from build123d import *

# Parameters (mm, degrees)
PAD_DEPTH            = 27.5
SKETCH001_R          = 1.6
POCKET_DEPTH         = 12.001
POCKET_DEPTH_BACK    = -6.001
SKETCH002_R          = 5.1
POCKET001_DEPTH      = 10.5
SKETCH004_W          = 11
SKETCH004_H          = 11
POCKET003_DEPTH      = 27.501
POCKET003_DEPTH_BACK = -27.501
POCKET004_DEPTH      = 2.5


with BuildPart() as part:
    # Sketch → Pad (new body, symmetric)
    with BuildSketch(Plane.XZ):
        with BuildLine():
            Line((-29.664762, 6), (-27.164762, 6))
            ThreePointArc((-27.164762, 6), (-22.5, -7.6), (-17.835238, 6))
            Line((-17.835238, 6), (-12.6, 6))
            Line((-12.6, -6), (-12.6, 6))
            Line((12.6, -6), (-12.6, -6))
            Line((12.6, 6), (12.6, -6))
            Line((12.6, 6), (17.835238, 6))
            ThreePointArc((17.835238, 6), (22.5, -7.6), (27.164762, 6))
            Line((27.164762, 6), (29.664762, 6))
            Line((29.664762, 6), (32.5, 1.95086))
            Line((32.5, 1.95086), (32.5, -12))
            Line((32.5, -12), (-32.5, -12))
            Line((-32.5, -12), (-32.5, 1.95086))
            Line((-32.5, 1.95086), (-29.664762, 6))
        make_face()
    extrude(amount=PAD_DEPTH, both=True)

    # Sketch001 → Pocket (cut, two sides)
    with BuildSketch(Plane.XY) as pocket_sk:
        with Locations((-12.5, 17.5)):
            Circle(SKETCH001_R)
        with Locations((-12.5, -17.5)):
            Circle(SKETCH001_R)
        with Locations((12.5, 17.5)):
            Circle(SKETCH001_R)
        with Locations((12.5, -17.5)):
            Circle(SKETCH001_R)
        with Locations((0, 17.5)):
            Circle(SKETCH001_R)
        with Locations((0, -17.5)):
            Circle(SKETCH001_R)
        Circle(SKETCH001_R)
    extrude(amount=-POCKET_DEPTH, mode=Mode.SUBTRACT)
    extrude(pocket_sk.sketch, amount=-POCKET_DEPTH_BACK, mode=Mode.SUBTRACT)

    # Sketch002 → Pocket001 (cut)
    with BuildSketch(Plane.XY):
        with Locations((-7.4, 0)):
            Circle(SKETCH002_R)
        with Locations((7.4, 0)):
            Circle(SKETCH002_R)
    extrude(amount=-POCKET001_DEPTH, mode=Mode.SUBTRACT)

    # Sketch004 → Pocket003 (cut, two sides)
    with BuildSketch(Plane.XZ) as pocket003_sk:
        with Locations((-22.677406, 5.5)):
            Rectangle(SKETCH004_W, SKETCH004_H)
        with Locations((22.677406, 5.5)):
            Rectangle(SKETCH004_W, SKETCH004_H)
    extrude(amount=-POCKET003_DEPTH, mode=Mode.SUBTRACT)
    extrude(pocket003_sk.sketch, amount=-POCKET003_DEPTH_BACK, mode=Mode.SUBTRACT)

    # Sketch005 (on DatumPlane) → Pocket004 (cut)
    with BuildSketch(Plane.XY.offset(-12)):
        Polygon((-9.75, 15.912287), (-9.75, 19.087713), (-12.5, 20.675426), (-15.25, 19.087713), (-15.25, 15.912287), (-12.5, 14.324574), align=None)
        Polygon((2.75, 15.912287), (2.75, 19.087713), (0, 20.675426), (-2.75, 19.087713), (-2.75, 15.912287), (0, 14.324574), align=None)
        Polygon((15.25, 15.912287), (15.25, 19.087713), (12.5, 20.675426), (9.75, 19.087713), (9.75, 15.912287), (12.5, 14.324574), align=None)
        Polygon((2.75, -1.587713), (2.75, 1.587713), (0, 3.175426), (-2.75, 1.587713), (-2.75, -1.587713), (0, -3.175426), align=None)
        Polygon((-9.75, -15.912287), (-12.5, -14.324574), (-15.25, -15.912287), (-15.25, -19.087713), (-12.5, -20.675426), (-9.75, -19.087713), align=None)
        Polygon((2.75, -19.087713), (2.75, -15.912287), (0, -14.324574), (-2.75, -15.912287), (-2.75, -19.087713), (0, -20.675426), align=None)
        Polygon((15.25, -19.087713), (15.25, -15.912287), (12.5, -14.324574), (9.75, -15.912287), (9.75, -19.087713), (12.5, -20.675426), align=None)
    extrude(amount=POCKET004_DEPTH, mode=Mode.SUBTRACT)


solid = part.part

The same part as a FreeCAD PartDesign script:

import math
import FreeCAD as App
import Part
import Sketcher
from FreeCAD import Vector
Q = App.Units.Quantity


def add_polygon(sketch, points):
    """Adds a closed chain of lines whose ends are joined by coincident constraints."""
    first, n = sketch.GeometryCount, len(points)
    for a, b in zip(points, points[1:] + points[:1]):
        sketch.addGeometry(Part.LineSegment(App.Vector(*a, 0), App.Vector(*b, 0)), False)
    for i in range(n):
        sketch.addConstraint(Sketcher.Constraint("Coincident", first + i, 2, first + (i + 1) % n, 1))

doc = App.newDocument("Part")
params = doc.addObject("Spreadsheet::Sheet", "Params")
for row, (alias, value) in enumerate([
    ("sketch1_radius", "7.6 mm"),
    ("sketch1_width", "65 mm"),
    ("sketch1_height", "12 mm"),
    ("sketch1_width2", "2.5 mm"),
    ("sketch1_width3", "25.2 mm"),
    ("pad1_length", "55 mm"),
    ("sketch2_diameter", "3.2 mm"),
    ("sketch3_diameter", "10.2 mm"),
    ("pocket2_length", "10.5 mm"),
    ("sketch4_width", "11 mm"),
    ("pocket4_length", "2.5 mm"),
], start=1):
    params.set(f"A{row}", alias)
    params.set(f"B{row}", "=" + value)
    params.setAlias(f"B{row}", alias)

body = doc.addObject("PartDesign::Body", "Body")

sketch1 = body.newObject("Sketcher::SketchObject", "Sketch")
sketch1.AttachmentSupport = (doc.getObject("XZ_Plane"), [""])
sketch1.MapMode = "FlatFace"
sketch1.addGeometry([
    Part.LineSegment(Vector(-27.2, 6, 0), Vector(-29.7, 6, 0)),
    Part.LineSegment(Vector(-29.7, 6, 0), Vector(-32.5, 2, 0)),
    Part.LineSegment(Vector(-32.5, 2, 0), Vector(-32.5, -12, 0)),
    Part.LineSegment(Vector(-32.5, -12, 0), Vector(32.5, -12, 0)),
    Part.LineSegment(Vector(32.5, -12, 0), Vector(32.5, 2, 0)),
    Part.LineSegment(Vector(32.5, 2, 0), Vector(29.7, 6, 0)),
    Part.LineSegment(Vector(29.7, 6, 0), Vector(27.2, 6, 0)),
    Part.ArcOfCircle(Part.Circle(Vector(22.5, 0, 0), Vector(0, 0, 1), 7.6), math.radians(128), math.radians(412)),
    Part.LineSegment(Vector(17.8, 6, 0), Vector(12.6, 6, 0)),
    Part.LineSegment(Vector(12.6, 6, 0), Vector(12.6, -6, 0)),
    Part.LineSegment(Vector(12.6, -6, 0), Vector(-12.6, -6, 0)),
    Part.LineSegment(Vector(-12.6, -6, 0), Vector(-12.6, 6, 0)),
    Part.LineSegment(Vector(-12.6, 6, 0), Vector(-17.8, 6, 0)),
    Part.ArcOfCircle(Part.Circle(Vector(-22.5, 0, 0), Vector(0, 0, 1), 7.6), math.radians(128), math.radians(412)),
], False)
sketch1.addConstraint([
    Sketcher.Constraint("Coincident", 0, 2, 1, 1),
    Sketcher.Constraint("Coincident", 1, 2, 2, 1),
    Sketcher.Constraint("Coincident", 2, 2, 3, 1),
    Sketcher.Constraint("Coincident", 3, 2, 4, 1),
    Sketcher.Constraint("Coincident", 4, 2, 5, 1),
    Sketcher.Constraint("Coincident", 5, 2, 6, 1),
    Sketcher.Constraint("Coincident", 6, 2, 7, 2),
    Sketcher.Constraint("Coincident", 7, 1, 8, 1),
    Sketcher.Constraint("Coincident", 8, 2, 9, 1),
    Sketcher.Constraint("Coincident", 9, 2, 10, 1),
    Sketcher.Constraint("Coincident", 10, 2, 11, 1),
    Sketcher.Constraint("Coincident", 11, 2, 12, 1),
    Sketcher.Constraint("Coincident", 12, 2, 13, 2),
    Sketcher.Constraint("Coincident", 13, 1, 0, 1),
    Sketcher.Constraint("Horizontal", 0),
    Sketcher.Constraint("Vertical", 2),
    Sketcher.Constraint("Horizontal", 3),
    Sketcher.Constraint("Vertical", 4),
    Sketcher.Constraint("Horizontal", 6),
    Sketcher.Constraint("Horizontal", 8),
    Sketcher.Constraint("Vertical", 9),
    Sketcher.Constraint("Horizontal", 10),
    Sketcher.Constraint("Vertical", 11),
    Sketcher.Constraint("Horizontal", 12),
    Sketcher.Constraint("Equal", 7, 13),
    Sketcher.Constraint("Symmetric", 7, 3, 13, 3, -1, 1),
    Sketcher.Constraint("Symmetric", 8, 2, 10, 2, -1, 1),
    Sketcher.Constraint("Symmetric", 1, 2, 4, 2, -2),
    Sketcher.Constraint("Symmetric", 0, 2, 5, 2, -2),
    Sketcher.Constraint("Symmetric", 7, 1, 12, 2, -2),
    Sketcher.Constraint("Horizontal", 6, 2, 7, 1),
    Sketcher.Constraint("Radius", 7, Q("7.6 mm")),
    Sketcher.Constraint("DistanceX", 3, 1, 3, 2, Q("65 mm")),
    Sketcher.Constraint("DistanceY", 9, 2, 9, 1, Q("12 mm")),
    Sketcher.Constraint("Angle", 1, Q("-124.999997 deg")),
    Sketcher.Constraint("DistanceX", 0, 2, 0, 1, Q("2.5 mm")),
    Sketcher.Constraint("DistanceX", 10, 2, 10, 1, Q("25.2 mm")),
    Sketcher.Constraint("DistanceY", 2, 2, -1, 1, Q("12 mm")),
    Sketcher.Constraint("DistanceX", 13, 3, 7, 3, Q("45 mm")),
])
sketch1.setExpression("Constraints[31]", "Params.sketch1_radius")
sketch1.setExpression("Constraints[32]", "Params.sketch1_width")
sketch1.setExpression("Constraints[33]", "Params.sketch1_height")
sketch1.setExpression("Constraints[35]", "Params.sketch1_width2")
sketch1.setExpression("Constraints[36]", "Params.sketch1_width3")
pad1 = body.newObject("PartDesign::Pad", "Pad")
pad1.Profile = sketch1
pad1.setExpression("Length", "Params.pad1_length")
pad1.Midplane = True

sketch2 = body.newObject("Sketcher::SketchObject", "Sketch001")
sketch2.AttachmentSupport = (doc.getObject("XY_Plane"), [""])
sketch2.MapMode = "FlatFace"
sketch2.addGeometry([
    Part.Circle(Vector(-12.5, 17.5, 0), Vector(0, 0, 1), 1.6),
    Part.Circle(Vector(-12.5, -17.5, 0), Vector(0, 0, 1), 1.6),
    Part.Circle(Vector(12.5, 17.5, 0), Vector(0, 0, 1), 1.6),
    Part.Circle(Vector(12.5, -17.5, 0), Vector(0, 0, 1), 1.6),
    Part.Circle(Vector(0, 17.5, 0), Vector(0, 0, 1), 1.6),
    Part.Circle(Vector(0, -17.5, 0), Vector(0, 0, 1), 1.6),
    Part.Circle(Vector(0, 0, 0), Vector(0, 0, 1), 1.6),
], False)
sketch2.addConstraint([
    Sketcher.Constraint("Coincident", 6, 3, -1, 1),
    Sketcher.Constraint("Equal", 0, 1),
    Sketcher.Constraint("Equal", 1, 2),
    Sketcher.Constraint("Equal", 2, 3),
    Sketcher.Constraint("Equal", 3, 4),
    Sketcher.Constraint("Equal", 4, 5),
    Sketcher.Constraint("Equal", 5, 6),
    Sketcher.Constraint("Symmetric", 1, 3, 2, 3, -1, 1),
    Sketcher.Constraint("Symmetric", 0, 3, 3, 3, -1, 1),
    Sketcher.Constraint("Symmetric", 4, 3, 5, 3, -1, 1),
    Sketcher.Constraint("Symmetric", 0, 3, 2, 3, -2),
    Sketcher.Constraint("PointOnObject", 4, 3, -2),
    Sketcher.Constraint("Horizontal", 2, 3, 4, 3),
    Sketcher.Constraint("Diameter", 0, Q("3.2 mm")),
    Sketcher.Constraint("DistanceY", 1, 3, 0, 3, Q("35 mm")),
    Sketcher.Constraint("DistanceX", 0, 3, 2, 3, Q("25 mm")),
])
sketch2.setExpression("Constraints[13]", "Params.sketch2_diameter")
pocket1 = body.newObject("PartDesign::Pocket", "Pocket")
pocket1.Profile = sketch2
pocket1.Type = "ThroughAll"
pocket1.Midplane = True

sketch3 = body.newObject("Sketcher::SketchObject", "Sketch002")
sketch3.AttachmentSupport = (doc.getObject("XY_Plane"), [""])
sketch3.MapMode = "FlatFace"
sketch3.addGeometry([
    Part.Circle(Vector(-7, 0, 0), Vector(0, 0, 1), 5),
    Part.Circle(Vector(7, 0, 0), Vector(0, 0, 1), 5),
], False)
sketch3.addConstraint([
    Sketcher.Constraint("Equal", 0, 1),
    Sketcher.Constraint("Symmetric", 0, 3, 1, 3, -1, 1),
    Sketcher.Constraint("PointOnObject", 0, 3, -1),
    Sketcher.Constraint("Diameter", 0, Q("10.2 mm")),
    Sketcher.Constraint("DistanceX", 0, 3, -1, 1, Q("7.4 mm")),
])
sketch3.setExpression("Constraints[3]", "Params.sketch3_diameter")
pocket2 = body.newObject("PartDesign::Pocket", "Pocket001")
pocket2.Profile = sketch3
pocket2.setExpression("Length", "Params.pocket2_length")

sketch4 = body.newObject("Sketcher::SketchObject", "Sketch003")
sketch4.AttachmentSupport = (doc.getObject("XZ_Plane"), [""])
sketch4.MapMode = "FlatFace"
add_polygon(sketch4, [(-28, 11), (-28, 0), (-17, 0), (-17, 11)])
add_polygon(sketch4, [(17, 11), (17, 0), (28, 0), (28, 11)])
sketch4.addConstraint([
    Sketcher.Constraint("Vertical", 0),
    Sketcher.Constraint("Horizontal", 1),
    Sketcher.Constraint("Vertical", 2),
    Sketcher.Constraint("Horizontal", 3),
    Sketcher.Constraint("Vertical", 4),
    Sketcher.Constraint("Horizontal", 5),
    Sketcher.Constraint("Vertical", 6),
    Sketcher.Constraint("Horizontal", 7),
    Sketcher.Constraint("Symmetric", 1, 2, 4, 2, -1, 1),
    Sketcher.Constraint("Symmetric", 0, 2, 5, 2, -2),
    Sketcher.Constraint("Horizontal", 3, 2, 6, 2),
    Sketcher.Constraint("Equal", 7, 0),
    Sketcher.Constraint("DistanceX", 1, 1, 1, 2, Q("11 mm")),
    Sketcher.Constraint("DistanceX", 0, 2, -1, 1, Q("28.177406 mm")),
])
sketch4.setExpression("Constraints[20]", "Params.sketch4_width")
pocket3 = body.newObject("PartDesign::Pocket", "Pocket002")
pocket3.Profile = sketch4
pocket3.Type = "ThroughAll"
pocket3.Midplane = True

sketch5 = body.newObject("Sketcher::SketchObject", "Sketch004")
sketch5.AttachmentSupport = (doc.getObject("XY_Plane"), [""])
sketch5.MapMode = "FlatFace"
sketch5.AttachmentOffset = App.Placement(Vector(0, 0, -12), App.Rotation())
add_polygon(sketch5, [(-9.8, 15.9), (-9.8, 19.1), (-12.5, 20.7), (-15.2, 19.1), (-15.2, 15.9), (-12.5, 14.3)])
add_polygon(sketch5, [(2.8, 15.9), (2.8, 19.1), (0, 20.7), (-2.8, 19.1), (-2.8, 15.9), (0, 14.3)])
add_polygon(sketch5, [(15.2, 15.9), (15.2, 19.1), (12.5, 20.7), (9.8, 19.1), (9.8, 15.9), (12.5, 14.3)])
add_polygon(sketch5, [(2.8, -1.6), (2.8, 1.6), (0, 3.2), (-2.8, 1.6), (-2.8, -1.6), (0, -3.2)])
add_polygon(sketch5, [(-9.8, -15.9), (-12.5, -14.3), (-15.2, -15.9), (-15.2, -19.1), (-12.5, -20.7), (-9.8, -19.1)])
add_polygon(sketch5, [(2.8, -19.1), (2.8, -15.9), (0, -14.3), (-2.8, -15.9), (-2.8, -19.1), (0, -20.7)])
add_polygon(sketch5, [(15.2, -19.1), (15.2, -15.9), (12.5, -14.3), (9.8, -15.9), (9.8, -19.1), (12.5, -20.7)])
sketch5.addConstraint([
    Sketcher.Constraint("Vertical", 0),
    Sketcher.Constraint("Vertical", 3),
    Sketcher.Constraint("Vertical", 6),
    Sketcher.Constraint("Vertical", 9),
    Sketcher.Constraint("Vertical", 12),
    Sketcher.Constraint("Vertical", 15),
    Sketcher.Constraint("Vertical", 18),
    Sketcher.Constraint("Vertical", 21),
    Sketcher.Constraint("Vertical", 26),
    Sketcher.Constraint("Vertical", 29),
    Sketcher.Constraint("Vertical", 30),
    Sketcher.Constraint("Vertical", 33),
    Sketcher.Constraint("Vertical", 36),
    Sketcher.Constraint("Vertical", 39),
    Sketcher.Constraint("Symmetric", 18, 2, 21, 2, -1, 1),
    Sketcher.Constraint("Symmetric", 19, 2, 22, 2, -1, 1),
    Sketcher.Constraint("Symmetric", 16, 2, 24, 2, -1, 1),
    Sketcher.Constraint("Symmetric", 17, 2, 25, 2, -1, 1),
    Sketcher.Constraint("Symmetric", 13, 2, 27, 2, -1, 1),
    Sketcher.Constraint("Symmetric", 14, 2, 28, 2, -1, 1),
    Sketcher.Constraint("Symmetric", 9, 2, 30, 2, -1, 1),
    Sketcher.Constraint("Symmetric", 10, 2, 31, 2, -1, 1),
    Sketcher.Constraint("Symmetric", 11, 2, 32, 2, -1, 1),
    Sketcher.Constraint("Symmetric", 7, 2, 34, 2, -1, 1),
    Sketcher.Constraint("Symmetric", 3, 2, 36, 2, -1, 1),
    Sketcher.Constraint("Symmetric", 4, 2, 37, 2, -1, 1),
    Sketcher.Constraint("Symmetric", 5, 2, 38, 2, -1, 1),
    Sketcher.Constraint("Symmetric", 1, 2, 40, 2, -1, 1),
    Sketcher.Constraint("Symmetric", 6, 2, 8, 2, -2),
    Sketcher.Constraint("Symmetric", 2, 2, 12, 2, -2),
    Sketcher.Constraint("Symmetric", 1, 2, 13, 2, -2),
    Sketcher.Constraint("Symmetric", 0, 2, 14, 2, -2),
    Sketcher.Constraint("Symmetric", 4, 2, 16, 2, -2),
    Sketcher.Constraint("PointOnObject", 7, 2, -2),
    Sketcher.Constraint("PointOnObject", 10, 2, -2),
    Sketcher.Constraint("PointOnObject", 19, 2, -2),
    Sketcher.Constraint("Parallel", 1, 4),
    Sketcher.Constraint("Parallel", 2, 5),
    Sketcher.Constraint("Parallel", 4, 7),
    Sketcher.Constraint("Parallel", 5, 8),
    Sketcher.Constraint("Parallel", 7, 10),
    Sketcher.Constraint("Parallel", 8, 11),
    Sketcher.Constraint("Parallel", 13, 16),
    Sketcher.Constraint("Parallel", 14, 17),
    Sketcher.Constraint("Parallel", 16, 19),
    Sketcher.Constraint("Parallel", 17, 20),
    Sketcher.Constraint("Parallel", 20, 23),
    Sketcher.Constraint("Parallel", 22, 24),
    Sketcher.Constraint("Parallel", 24, 27),
    Sketcher.Constraint("Parallel", 31, 34),
    Sketcher.Constraint("Parallel", 32, 35),
    Sketcher.Constraint("Parallel", 37, 40),
    Sketcher.Constraint("Parallel", 38, 41),
    Sketcher.Constraint("Horizontal", 0, 2, 2, 2),
    Sketcher.Constraint("Horizontal", 3, 2, 5, 2),
    Sketcher.Constraint("Horizontal", 2, 2, 6, 2),
    Sketcher.Constraint("Horizontal", 1, 2, 7, 2),
    Sketcher.Constraint("Horizontal", 5, 2, 9, 2),
    Sketcher.Constraint("Vertical", 11, 2, 18, 2),
    Sketcher.Constraint("Equal", 15, 18),
    Sketcher.Constraint("Angle", 1, Q("150.000004 deg")),
    Sketcher.Constraint("DistanceX", 2, 2, 6, 2, Q("18 mm")),
    Sketcher.Constraint("DistanceX", 0, 2, 8, 2, Q("7 mm")),
    Sketcher.Constraint("DistanceY", 21, 2, 9, 2, Q("17.5 mm")),
    Sketcher.Constraint("DistanceY", 0, 1, 0, 2, Q("3.175426 mm")),
])
pocket4 = body.newObject("PartDesign::Pocket", "Pocket003")
pocket4.Profile = sketch5
pocket4.setExpression("Length", "Params.pocket4_length")
pocket4.Reversed = True

doc.recompute()
